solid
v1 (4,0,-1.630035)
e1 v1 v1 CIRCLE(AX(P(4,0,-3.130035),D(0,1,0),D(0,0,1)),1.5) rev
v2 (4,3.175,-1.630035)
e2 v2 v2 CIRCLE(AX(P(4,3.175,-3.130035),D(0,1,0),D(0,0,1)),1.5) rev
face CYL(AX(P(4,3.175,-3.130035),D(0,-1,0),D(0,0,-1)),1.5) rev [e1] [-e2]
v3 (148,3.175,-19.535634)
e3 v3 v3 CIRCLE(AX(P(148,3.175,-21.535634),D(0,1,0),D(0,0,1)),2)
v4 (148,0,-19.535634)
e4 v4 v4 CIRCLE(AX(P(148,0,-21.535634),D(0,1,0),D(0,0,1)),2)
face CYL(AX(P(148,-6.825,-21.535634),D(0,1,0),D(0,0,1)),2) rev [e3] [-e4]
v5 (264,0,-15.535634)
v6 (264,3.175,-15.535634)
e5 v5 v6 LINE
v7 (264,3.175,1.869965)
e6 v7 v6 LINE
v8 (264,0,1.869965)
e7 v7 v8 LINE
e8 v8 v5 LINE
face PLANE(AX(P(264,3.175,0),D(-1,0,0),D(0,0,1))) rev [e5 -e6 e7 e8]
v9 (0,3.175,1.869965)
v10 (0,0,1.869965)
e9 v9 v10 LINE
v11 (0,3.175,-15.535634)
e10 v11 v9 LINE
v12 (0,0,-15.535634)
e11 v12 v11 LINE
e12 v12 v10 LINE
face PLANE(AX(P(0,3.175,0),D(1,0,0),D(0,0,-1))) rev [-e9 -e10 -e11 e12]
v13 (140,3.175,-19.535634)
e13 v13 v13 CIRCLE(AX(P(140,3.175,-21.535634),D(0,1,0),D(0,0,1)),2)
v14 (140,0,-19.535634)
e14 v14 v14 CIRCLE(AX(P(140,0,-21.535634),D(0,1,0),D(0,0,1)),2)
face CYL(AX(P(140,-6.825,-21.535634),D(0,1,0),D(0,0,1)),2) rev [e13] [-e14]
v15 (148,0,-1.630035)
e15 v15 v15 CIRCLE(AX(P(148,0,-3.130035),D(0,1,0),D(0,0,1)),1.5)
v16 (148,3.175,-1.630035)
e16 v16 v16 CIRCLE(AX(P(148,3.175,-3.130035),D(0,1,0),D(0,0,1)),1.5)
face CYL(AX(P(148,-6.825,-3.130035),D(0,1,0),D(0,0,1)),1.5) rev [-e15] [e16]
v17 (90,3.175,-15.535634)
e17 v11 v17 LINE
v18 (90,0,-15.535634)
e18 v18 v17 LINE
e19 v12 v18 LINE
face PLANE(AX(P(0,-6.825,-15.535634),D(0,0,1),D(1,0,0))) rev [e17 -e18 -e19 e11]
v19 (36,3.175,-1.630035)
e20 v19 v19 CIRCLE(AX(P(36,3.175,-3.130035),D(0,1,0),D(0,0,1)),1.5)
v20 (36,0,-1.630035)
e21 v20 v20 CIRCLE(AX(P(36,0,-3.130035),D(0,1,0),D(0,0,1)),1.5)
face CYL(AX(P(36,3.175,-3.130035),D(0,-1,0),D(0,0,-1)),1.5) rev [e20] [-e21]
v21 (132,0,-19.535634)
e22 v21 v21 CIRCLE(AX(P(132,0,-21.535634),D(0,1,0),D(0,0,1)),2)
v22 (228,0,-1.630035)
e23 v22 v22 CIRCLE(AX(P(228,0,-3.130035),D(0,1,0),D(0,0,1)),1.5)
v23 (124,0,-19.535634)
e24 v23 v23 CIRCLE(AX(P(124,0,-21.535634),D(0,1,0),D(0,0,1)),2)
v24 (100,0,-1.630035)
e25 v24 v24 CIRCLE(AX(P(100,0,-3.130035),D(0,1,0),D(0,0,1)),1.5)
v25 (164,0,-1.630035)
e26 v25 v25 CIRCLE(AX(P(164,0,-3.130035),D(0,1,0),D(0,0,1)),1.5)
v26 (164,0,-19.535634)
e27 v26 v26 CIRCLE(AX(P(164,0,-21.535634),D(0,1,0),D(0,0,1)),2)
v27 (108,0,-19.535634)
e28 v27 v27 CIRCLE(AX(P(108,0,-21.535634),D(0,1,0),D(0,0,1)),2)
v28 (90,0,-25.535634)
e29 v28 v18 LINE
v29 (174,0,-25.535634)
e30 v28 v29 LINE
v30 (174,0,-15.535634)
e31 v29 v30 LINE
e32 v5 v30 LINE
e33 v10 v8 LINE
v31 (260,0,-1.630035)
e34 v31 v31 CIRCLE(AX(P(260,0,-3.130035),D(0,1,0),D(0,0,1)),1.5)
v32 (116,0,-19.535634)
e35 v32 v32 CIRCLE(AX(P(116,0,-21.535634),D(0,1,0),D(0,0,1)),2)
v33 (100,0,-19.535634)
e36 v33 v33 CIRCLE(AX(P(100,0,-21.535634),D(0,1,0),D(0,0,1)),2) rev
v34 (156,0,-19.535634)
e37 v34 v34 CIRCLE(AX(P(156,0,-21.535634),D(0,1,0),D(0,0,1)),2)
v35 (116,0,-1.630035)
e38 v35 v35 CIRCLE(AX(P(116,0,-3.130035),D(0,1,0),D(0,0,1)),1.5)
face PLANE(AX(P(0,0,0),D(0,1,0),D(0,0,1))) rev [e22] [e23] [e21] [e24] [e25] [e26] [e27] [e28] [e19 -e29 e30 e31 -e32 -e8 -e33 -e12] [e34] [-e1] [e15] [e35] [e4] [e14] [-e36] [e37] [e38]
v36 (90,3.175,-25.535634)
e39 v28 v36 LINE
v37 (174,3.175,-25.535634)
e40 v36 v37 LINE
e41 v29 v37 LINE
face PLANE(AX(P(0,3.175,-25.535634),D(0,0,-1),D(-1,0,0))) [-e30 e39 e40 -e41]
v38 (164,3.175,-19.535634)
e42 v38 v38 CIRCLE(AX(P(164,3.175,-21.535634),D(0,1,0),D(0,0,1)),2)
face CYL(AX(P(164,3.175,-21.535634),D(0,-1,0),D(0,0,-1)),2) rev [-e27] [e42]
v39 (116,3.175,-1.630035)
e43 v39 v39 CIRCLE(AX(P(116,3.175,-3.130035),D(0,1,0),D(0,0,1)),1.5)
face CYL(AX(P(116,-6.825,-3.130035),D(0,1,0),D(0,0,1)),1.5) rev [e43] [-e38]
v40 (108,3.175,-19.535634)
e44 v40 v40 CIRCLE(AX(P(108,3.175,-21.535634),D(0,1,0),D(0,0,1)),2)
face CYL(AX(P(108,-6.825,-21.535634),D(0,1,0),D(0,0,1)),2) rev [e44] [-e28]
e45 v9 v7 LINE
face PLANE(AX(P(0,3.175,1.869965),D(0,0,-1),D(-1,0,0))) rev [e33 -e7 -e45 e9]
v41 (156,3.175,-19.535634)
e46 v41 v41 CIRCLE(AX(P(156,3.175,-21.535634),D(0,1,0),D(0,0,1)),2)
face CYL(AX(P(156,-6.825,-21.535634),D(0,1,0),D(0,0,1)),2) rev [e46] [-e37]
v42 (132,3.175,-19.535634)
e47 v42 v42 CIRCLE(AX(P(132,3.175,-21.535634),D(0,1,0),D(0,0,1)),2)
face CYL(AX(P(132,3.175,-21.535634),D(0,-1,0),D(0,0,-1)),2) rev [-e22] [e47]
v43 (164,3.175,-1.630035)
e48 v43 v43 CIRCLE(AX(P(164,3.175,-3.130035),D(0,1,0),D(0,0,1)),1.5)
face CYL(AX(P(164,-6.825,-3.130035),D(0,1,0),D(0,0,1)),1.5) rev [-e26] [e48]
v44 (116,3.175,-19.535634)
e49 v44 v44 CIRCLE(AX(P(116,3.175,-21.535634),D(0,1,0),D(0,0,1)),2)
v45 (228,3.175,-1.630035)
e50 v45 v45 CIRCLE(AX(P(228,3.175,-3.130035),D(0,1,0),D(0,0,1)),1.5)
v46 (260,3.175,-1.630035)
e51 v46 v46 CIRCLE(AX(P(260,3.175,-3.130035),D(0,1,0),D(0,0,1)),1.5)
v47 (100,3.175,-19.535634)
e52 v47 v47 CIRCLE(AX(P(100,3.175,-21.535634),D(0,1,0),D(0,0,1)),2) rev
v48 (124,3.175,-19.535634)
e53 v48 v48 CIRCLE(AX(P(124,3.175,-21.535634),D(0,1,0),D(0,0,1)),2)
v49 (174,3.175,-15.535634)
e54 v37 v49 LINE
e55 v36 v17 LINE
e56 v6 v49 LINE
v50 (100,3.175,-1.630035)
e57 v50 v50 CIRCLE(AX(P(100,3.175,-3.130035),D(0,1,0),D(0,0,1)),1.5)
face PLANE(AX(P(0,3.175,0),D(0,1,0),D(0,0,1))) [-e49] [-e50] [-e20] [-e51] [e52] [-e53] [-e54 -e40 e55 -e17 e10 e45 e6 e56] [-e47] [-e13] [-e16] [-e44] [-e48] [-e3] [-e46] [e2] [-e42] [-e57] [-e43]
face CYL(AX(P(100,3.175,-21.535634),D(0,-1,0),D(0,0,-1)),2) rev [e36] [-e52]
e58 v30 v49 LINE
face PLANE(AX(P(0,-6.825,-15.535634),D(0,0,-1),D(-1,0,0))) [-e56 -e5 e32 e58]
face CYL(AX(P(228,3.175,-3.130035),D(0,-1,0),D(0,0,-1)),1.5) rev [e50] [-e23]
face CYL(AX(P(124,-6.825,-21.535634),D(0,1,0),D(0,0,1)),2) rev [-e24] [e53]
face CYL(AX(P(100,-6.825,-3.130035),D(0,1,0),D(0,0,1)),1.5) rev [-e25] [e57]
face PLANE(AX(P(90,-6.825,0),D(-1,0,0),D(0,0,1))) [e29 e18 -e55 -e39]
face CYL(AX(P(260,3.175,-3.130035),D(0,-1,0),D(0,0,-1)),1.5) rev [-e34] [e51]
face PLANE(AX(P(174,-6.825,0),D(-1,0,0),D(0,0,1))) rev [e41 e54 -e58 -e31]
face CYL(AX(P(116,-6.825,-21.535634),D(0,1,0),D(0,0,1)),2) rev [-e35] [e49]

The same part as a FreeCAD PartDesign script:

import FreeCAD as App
import Part
import Sketcher
from FreeCAD import Vector

doc = App.newDocument("Part")
body = doc.addObject("PartDesign::Body", "Body")

# Sketch on XZ plane
sketch1 = body.newObject("Sketcher::SketchObject", "Sketch")
sketch1.AttachmentSupport = (doc.getObject("XZ_Plane"), [""])
sketch1.MapMode = "FlatFace"
sketch1.addGeometry(Part.LineSegment(Vector(0, -25.5, 0), Vector(0, 1.9, 0)), False)
sketch1.addGeometry(Part.LineSegment(Vector(0, 1.9, 0), Vector(264, 1.9, 0)), False)
sketch1.addGeometry(Part.LineSegment(Vector(264, 1.9, 0), Vector(264, -25.5, 0)), False)
sketch1.addGeometry(Part.LineSegment(Vector(264, -25.5, 0), Vector(0, -25.5, 0)), False)
sketch1.addGeometry(Part.Circle(Vector(4, -3.1, 0), Vector(0, 0, 1), 1.5), False)
sketch1.addGeometry(Part.Circle(Vector(36, -3.1, 0), Vector(0, 0, 1), 1.5), False)
sketch1.addGeometry(Part.Circle(Vector(228, -3.1, 0), Vector(0, 0, 1), 1.5), False)
sketch1.addGeometry(Part.Circle(Vector(260, -3.1, 0), Vector(0, 0, 1), 1.5), False)
sketch1.addGeometry(Part.Circle(Vector(68, -21.5, 0), Vector(0, 0, 1), 2), False)
sketch1.addGeometry(Part.Circle(Vector(100, -21.5, 0), Vector(0, 0, 1), 2), False)
sketch1.addGeometry(Part.Circle(Vector(132, -21.5, 0), Vector(0, 0, 1), 2), False)
sketch1.addGeometry(Part.Circle(Vector(164, -21.5, 0), Vector(0, 0, 1), 2), False)
sketch1.addGeometry(Part.Circle(Vector(196, -21.5, 0), Vector(0, 0, 1), 2), False)
sketch1.addConstraint(Sketcher.Constraint("Coincident", 0, 2, 1, 1))
sketch1.addConstraint(Sketcher.Constraint("Coincident", 1, 2, 2, 1))
sketch1.addConstraint(Sketcher.Constraint("Coincident", 2, 2, 3, 1))
sketch1.addConstraint(Sketcher.Constraint("Coincident", 3, 2, 0, 1))
sketch1.addConstraint(Sketcher.Constraint("Vertical", 0))
sketch1.addConstraint(Sketcher.Constraint("Horizontal", 1))
sketch1.addConstraint(Sketcher.Constraint("Vertical", 2))
sketch1.addConstraint(Sketcher.Constraint("Horizontal", 3))
sketch1.addConstraint(Sketcher.Constraint("Equal", 4, 5))
sketch1.addConstraint(Sketcher.Constraint("Equal", 5, 6))
sketch1.addConstraint(Sketcher.Constraint("Equal", 6, 7))
sketch1.addConstraint(Sketcher.Constraint("Equal", 8, 9))
sketch1.addConstraint(Sketcher.Constraint("Equal", 9, 10))
sketch1.addConstraint(Sketcher.Constraint("Equal", 10, 11))
sketch1.addConstraint(Sketcher.Constraint("Equal", 11, 12))
sketch1.addConstraint(Sketcher.Constraint("PointOnObject", 0, 2, -2))
sketch1.addConstraint(Sketcher.Constraint("Horizontal", 4, 3, 5, 3))
sketch1.addConstraint(Sketcher.Constraint("Horizontal", 5, 3, 6, 3))
sketch1.addConstraint(Sketcher.Constraint("Horizontal", 6, 3, 7, 3))
sketch1.addConstraint(Sketcher.Constraint("Horizontal", 8, 3, 9, 3))
sketch1.addConstraint(Sketcher.Constraint("Horizontal", 9, 3, 10, 3))
sketch1.addConstraint(Sketcher.Constraint("Horizontal", 10, 3, 11, 3))
sketch1.addConstraint(Sketcher.Constraint("Horizontal", 11, 3, 12, 3))
sketch1.addConstraint(Sketcher.Constraint("Diameter", 4, 3.0))
sketch1.addConstraint(Sketcher.Constraint("Diameter", 8, 4.0))
sketch1.addConstraint(Sketcher.Constraint("DistanceX", 1, 1, 1, 2, 264.0))
sketch1.addConstraint(Sketcher.Constraint("DistanceX", -1, 1, 4, 3, 4.0))
sketch1.addConstraint(Sketcher.Constraint("DistanceX", -1, 1, 5, 3, 36.0))
sketch1.addConstraint(Sketcher.Constraint("DistanceX", -1, 1, 6, 3, 228.0))
sketch1.addConstraint(Sketcher.Constraint("DistanceX", -1, 1, 7, 3, 260.0))
sketch1.addConstraint(Sketcher.Constraint("DistanceX", -1, 1, 8, 3, 68.0))
sketch1.addConstraint(Sketcher.Constraint("DistanceX", -1, 1, 9, 3, 100.0))
sketch1.addConstraint(Sketcher.Constraint("DistanceX", -1, 1, 10, 3, 132.0))
sketch1.addConstraint(Sketcher.Constraint("DistanceX", -1, 1, 11, 3, 164.0))
sketch1.addConstraint(Sketcher.Constraint("DistanceX", -1, 1, 12, 3, 196.0))
sketch1.addConstraint(Sketcher.Constraint("DistanceY", 4, 3, 0, 2, 5.0))
sketch1.addConstraint(Sketcher.Constraint("DistanceY", 2, 2, 12, 3, 4.0))
sketch1.addConstraint(Sketcher.Constraint("DistanceY", 0, 1, 0, 2, 27.405599))
sketch1.addConstraint(Sketcher.Constraint("DistanceY", 4, 3, -1, 1, 3.130035))
pad1 = body.newObject("PartDesign::Pad", "Pad")
pad1.Profile = sketch1
pad1.Length = 3.175
pad1.Reversed = True

# Sketch on XZ plane
sketch2 = body.newObject("Sketcher::SketchObject", "Sketch001")
sketch2.AttachmentSupport = (doc.getObject("XZ_Plane"), [""])
sketch2.MapMode = "FlatFace"
sketch2.AttachmentOffset = App.Placement(Vector(0, 0, -3.175), App.Rotation())
sketch2.addGeometry(Part.Circle(Vector(116, -3.1, 0), Vector(0, 0, 1), 1.5), False)
sketch2.addGeometry(Part.Circle(Vector(148, -3.1, 0), Vector(0, 0, 1), 1.5), False)
sketch2.addGeometry(Part.Circle(Vector(100, -3.1, 0), Vector(0, 0, 1), 1.5), False)
sketch2.addGeometry(Part.Circle(Vector(164, -3.1, 0), Vector(0, 0, 1), 1.5), False)
sketch2.addConstraint(Sketcher.Constraint("Equal", 0, 1))
sketch2.addConstraint(Sketcher.Constraint("Equal", 1, 2))
sketch2.addConstraint(Sketcher.Constraint("Equal", 2, 3))
sketch2.addConstraint(Sketcher.Constraint("Horizontal", 0, 3, 1, 3))
sketch2.addConstraint(Sketcher.Constraint("Horizontal", 1, 3, 2, 3))
sketch2.addConstraint(Sketcher.Constraint("Horizontal", 2, 3, 3, 3))
sketch2.addConstraint(Sketcher.Constraint("Diameter", 0, 3.0))
sketch2.addConstraint(Sketcher.Constraint("DistanceX", -1, 1, 0, 3, 116.0))
sketch2.addConstraint(Sketcher.Constraint("DistanceX", -1, 1, 1, 3, 148.0))
sketch2.addConstraint(Sketcher.Constraint("DistanceX", -1, 1, 2, 3, 100.0))
sketch2.addConstraint(Sketcher.Constraint("DistanceX", -1, 1, 3, 3, 164.0))
sketch2.addConstraint(Sketcher.Constraint("DistanceY", 0, 3, -1, 1, 3.130035))
pocket1 = body.newObject("PartDesign::Pocket", "Pocket")
pocket1.Profile = sketch2
pocket1.Length = 10
pocket1.Reversed = True

# Sketch on XZ plane
sketch3 = body.newObject("Sketcher::SketchObject", "Sketch002")
sketch3.AttachmentSupport = (doc.getObject("XZ_Plane"), [""])
sketch3.MapMode = "FlatFace"
sketch3.AttachmentOffset = App.Placement(Vector(0, 0, -3.175), App.Rotation())
sketch3.addGeometry(Part.LineSegment(Vector(0, -26, 0), Vector(0, -16, 0)), False)
sketch3.addGeometry(Part.LineSegment(Vector(0, -16, 0), Vector(90, -16, 0)), False)
sketch3.addGeometry(Part.LineSegment(Vector(90, -16, 0), Vector(90, -26, 0)), False)
sketch3.addGeometry(Part.LineSegment(Vector(90, -26, 0), Vector(0, -26, 0)), False)
sketch3.addGeometry(Part.LineSegment(Vector(174, -26, 0), Vector(174, -16, 0)), False)
sketch3.addGeometry(Part.LineSegment(Vector(174, -16, 0), Vector(264, -16, 0)), False)
sketch3.addGeometry(Part.LineSegment(Vector(264, -16, 0), Vector(264, -26, 0)), False)
sketch3.addGeometry(Part.LineSegment(Vector(264, -26, 0), Vector(174, -26, 0)), False)
sketch3.addConstraint(Sketcher.Constraint("Coincident", 0, 2, 1, 1))
sketch3.addConstraint(Sketcher.Constraint("Coincident", 1, 2, 2, 1))
sketch3.addConstraint(Sketcher.Constraint("Coincident", 2, 2, 3, 1))
sketch3.addConstraint(Sketcher.Constraint("Coincident", 3, 2, 0, 1))
sketch3.addConstraint(Sketcher.Constraint("Coincident", 4, 2, 5, 1))
sketch3.addConstraint(Sketcher.Constraint("Coincident", 5, 2, 6, 1))
sketch3.addConstraint(Sketcher.Constraint("Coincident", 6, 2, 7, 1))
sketch3.addConstraint(Sketcher.Constraint("Coincident", 7, 2, 4, 1))
sketch3.addConstraint(Sketcher.Constraint("Vertical", 0))
sketch3.addConstraint(Sketcher.Constraint("Horizontal", 1))
sketch3.addConstraint(Sketcher.Constraint("Vertical", 2))
sketch3.addConstraint(Sketcher.Constraint("Horizontal", 3))
sketch3.addConstraint(Sketcher.Constraint("Vertical", 4))
sketch3.addConstraint(Sketcher.Constraint("Horizontal", 5))
sketch3.addConstraint(Sketcher.Constraint("Vertical", 6))
sketch3.addConstraint(Sketcher.Constraint("Horizontal", 7))
sketch3.addConstraint(Sketcher.Constraint("PointOnObject", 0, 2, -2))
sketch3.addConstraint(Sketcher.Constraint("Horizontal", 1, 2, 4, 2))
sketch3.addConstraint(Sketcher.Constraint("Horizontal", 3, 2, 6, 2))
sketch3.addConstraint(Sketcher.Constraint("Equal", 3, 5))
sketch3.addConstraint(Sketcher.Constraint("DistanceX", 1, 1, 1, 2, 90.0))
sketch3.addConstraint(Sketcher.Constraint("DistanceY", 0, 1, 0, 2, 10.0))
sketch3.addConstraint(Sketcher.Constraint("DistanceX", -1, 1, 4, 2, 174.0))
sketch3.addConstraint(Sketcher.Constraint("DistanceY", 0, 2, -1, 1, 15.535634))
pocket2 = body.newObject("PartDesign::Pocket", "Pocket001")
pocket2.Profile = sketch3
pocket2.Length = 10
pocket2.Reversed = True

# Sketch on XZ plane
sketch4 = body.newObject("Sketcher::SketchObject", "Sketch003")
sketch4.AttachmentSupport = (doc.getObject("XZ_Plane"), [""])
sketch4.MapMode = "FlatFace"
sketch4.AttachmentOffset = App.Placement(Vector(0, 0, 6.825), App.Rotation())
sketch4.addGeometry(Part.Circle(Vector(100, -21.5, 0), Vector(0, 0, 1), 2), False)
sketch4.addGeometry(Part.Circle(Vector(108, -21.5, 0), Vector(0, 0, 1), 2), False)
sketch4.addGeometry(Part.Circle(Vector(116, -21.5, 0), Vector(0, 0, 1), 2), False)
sketch4.addGeometry(Part.Circle(Vector(124, -21.5, 0), Vector(0, 0, 1), 2), False)
sketch4.addGeometry(Part.Circle(Vector(132, -21.5, 0), Vector(0, 0, 1), 2), False)
sketch4.addGeometry(Part.Circle(Vector(140, -21.5, 0), Vector(0, 0, 1), 2), False)
sketch4.addGeometry(Part.Circle(Vector(148, -21.5, 0), Vector(0, 0, 1), 2), False)
sketch4.addGeometry(Part.Circle(Vector(156, -21.5, 0), Vector(0, 0, 1), 2), False)
sketch4.addGeometry(Part.Circle(Vector(164, -21.5, 0), Vector(0, 0, 1), 2), False)
sketch4.addConstraint(Sketcher.Constraint("Equal", 0, 1))
sketch4.addConstraint(Sketcher.Constraint("Equal", 1, 2))
sketch4.addConstraint(Sketcher.Constraint("Equal", 2, 3))
sketch4.addConstraint(Sketcher.Constraint("Equal", 3, 4))
sketch4.addConstraint(Sketcher.Constraint("Equal", 4, 5))
sketch4.addConstraint(Sketcher.Constraint("Equal", 5, 6))
sketch4.addConstraint(Sketcher.Constraint("Equal", 6, 7))
sketch4.addConstraint(Sketcher.Constraint("Equal", 7, 8))
sketch4.addConstraint(Sketcher.Constraint("Horizontal", 0, 3, 1, 3))
sketch4.addConstraint(Sketcher.Constraint("Horizontal", 1, 3, 2, 3))
sketch4.addConstraint(Sketcher.Constraint("Horizontal", 2, 3, 3, 3))
sketch4.addConstraint(Sketcher.Constraint("Horizontal", 3, 3, 4, 3))
sketch4.addConstraint(Sketcher.Constraint("Horizontal", 4, 3, 5, 3))
sketch4.addConstraint(Sketcher.Constraint("Horizontal", 5, 3, 6, 3))
sketch4.addConstraint(Sketcher.Constraint("Horizontal", 6, 3, 7, 3))
sketch4.addConstraint(Sketcher.Constraint("Horizontal", 7, 3, 8, 3))
sketch4.addConstraint(Sketcher.Constraint("Diameter", 0, 4.0))
sketch4.addConstraint(Sketcher.Constraint("DistanceX", -1, 1, 0, 3, 100.0))
sketch4.addConstraint(Sketcher.Constraint("DistanceX", -1, 1, 1, 3, 108.0))
sketch4.addConstraint(Sketcher.Constraint("DistanceX", -1, 1, 2, 3, 116.0))
sketch4.addConstraint(Sketcher.Constraint("DistanceX", -1, 1, 3, 3, 124.0))
sketch4.addConstraint(Sketcher.Constraint("DistanceX", -1, 1, 4, 3, 132.0))
sketch4.addConstraint(Sketcher.Constraint("DistanceX", -1, 1, 5, 3, 140.0))
sketch4.addConstraint(Sketcher.Constraint("DistanceX", -1, 1, 6, 3, 148.0))
sketch4.addConstraint(Sketcher.Constraint("DistanceX", -1, 1, 7, 3, 156.0))
sketch4.addConstraint(Sketcher.Constraint("DistanceX", -1, 1, 8, 3, 164.0))
sketch4.addConstraint(Sketcher.Constraint("DistanceY", 0, 3, -1, 1, 21.535634))
pocket3 = body.newObject("PartDesign::Pocket", "Pocket002")
pocket3.Profile = sketch4
pocket3.Length = 10

doc.recompute()
